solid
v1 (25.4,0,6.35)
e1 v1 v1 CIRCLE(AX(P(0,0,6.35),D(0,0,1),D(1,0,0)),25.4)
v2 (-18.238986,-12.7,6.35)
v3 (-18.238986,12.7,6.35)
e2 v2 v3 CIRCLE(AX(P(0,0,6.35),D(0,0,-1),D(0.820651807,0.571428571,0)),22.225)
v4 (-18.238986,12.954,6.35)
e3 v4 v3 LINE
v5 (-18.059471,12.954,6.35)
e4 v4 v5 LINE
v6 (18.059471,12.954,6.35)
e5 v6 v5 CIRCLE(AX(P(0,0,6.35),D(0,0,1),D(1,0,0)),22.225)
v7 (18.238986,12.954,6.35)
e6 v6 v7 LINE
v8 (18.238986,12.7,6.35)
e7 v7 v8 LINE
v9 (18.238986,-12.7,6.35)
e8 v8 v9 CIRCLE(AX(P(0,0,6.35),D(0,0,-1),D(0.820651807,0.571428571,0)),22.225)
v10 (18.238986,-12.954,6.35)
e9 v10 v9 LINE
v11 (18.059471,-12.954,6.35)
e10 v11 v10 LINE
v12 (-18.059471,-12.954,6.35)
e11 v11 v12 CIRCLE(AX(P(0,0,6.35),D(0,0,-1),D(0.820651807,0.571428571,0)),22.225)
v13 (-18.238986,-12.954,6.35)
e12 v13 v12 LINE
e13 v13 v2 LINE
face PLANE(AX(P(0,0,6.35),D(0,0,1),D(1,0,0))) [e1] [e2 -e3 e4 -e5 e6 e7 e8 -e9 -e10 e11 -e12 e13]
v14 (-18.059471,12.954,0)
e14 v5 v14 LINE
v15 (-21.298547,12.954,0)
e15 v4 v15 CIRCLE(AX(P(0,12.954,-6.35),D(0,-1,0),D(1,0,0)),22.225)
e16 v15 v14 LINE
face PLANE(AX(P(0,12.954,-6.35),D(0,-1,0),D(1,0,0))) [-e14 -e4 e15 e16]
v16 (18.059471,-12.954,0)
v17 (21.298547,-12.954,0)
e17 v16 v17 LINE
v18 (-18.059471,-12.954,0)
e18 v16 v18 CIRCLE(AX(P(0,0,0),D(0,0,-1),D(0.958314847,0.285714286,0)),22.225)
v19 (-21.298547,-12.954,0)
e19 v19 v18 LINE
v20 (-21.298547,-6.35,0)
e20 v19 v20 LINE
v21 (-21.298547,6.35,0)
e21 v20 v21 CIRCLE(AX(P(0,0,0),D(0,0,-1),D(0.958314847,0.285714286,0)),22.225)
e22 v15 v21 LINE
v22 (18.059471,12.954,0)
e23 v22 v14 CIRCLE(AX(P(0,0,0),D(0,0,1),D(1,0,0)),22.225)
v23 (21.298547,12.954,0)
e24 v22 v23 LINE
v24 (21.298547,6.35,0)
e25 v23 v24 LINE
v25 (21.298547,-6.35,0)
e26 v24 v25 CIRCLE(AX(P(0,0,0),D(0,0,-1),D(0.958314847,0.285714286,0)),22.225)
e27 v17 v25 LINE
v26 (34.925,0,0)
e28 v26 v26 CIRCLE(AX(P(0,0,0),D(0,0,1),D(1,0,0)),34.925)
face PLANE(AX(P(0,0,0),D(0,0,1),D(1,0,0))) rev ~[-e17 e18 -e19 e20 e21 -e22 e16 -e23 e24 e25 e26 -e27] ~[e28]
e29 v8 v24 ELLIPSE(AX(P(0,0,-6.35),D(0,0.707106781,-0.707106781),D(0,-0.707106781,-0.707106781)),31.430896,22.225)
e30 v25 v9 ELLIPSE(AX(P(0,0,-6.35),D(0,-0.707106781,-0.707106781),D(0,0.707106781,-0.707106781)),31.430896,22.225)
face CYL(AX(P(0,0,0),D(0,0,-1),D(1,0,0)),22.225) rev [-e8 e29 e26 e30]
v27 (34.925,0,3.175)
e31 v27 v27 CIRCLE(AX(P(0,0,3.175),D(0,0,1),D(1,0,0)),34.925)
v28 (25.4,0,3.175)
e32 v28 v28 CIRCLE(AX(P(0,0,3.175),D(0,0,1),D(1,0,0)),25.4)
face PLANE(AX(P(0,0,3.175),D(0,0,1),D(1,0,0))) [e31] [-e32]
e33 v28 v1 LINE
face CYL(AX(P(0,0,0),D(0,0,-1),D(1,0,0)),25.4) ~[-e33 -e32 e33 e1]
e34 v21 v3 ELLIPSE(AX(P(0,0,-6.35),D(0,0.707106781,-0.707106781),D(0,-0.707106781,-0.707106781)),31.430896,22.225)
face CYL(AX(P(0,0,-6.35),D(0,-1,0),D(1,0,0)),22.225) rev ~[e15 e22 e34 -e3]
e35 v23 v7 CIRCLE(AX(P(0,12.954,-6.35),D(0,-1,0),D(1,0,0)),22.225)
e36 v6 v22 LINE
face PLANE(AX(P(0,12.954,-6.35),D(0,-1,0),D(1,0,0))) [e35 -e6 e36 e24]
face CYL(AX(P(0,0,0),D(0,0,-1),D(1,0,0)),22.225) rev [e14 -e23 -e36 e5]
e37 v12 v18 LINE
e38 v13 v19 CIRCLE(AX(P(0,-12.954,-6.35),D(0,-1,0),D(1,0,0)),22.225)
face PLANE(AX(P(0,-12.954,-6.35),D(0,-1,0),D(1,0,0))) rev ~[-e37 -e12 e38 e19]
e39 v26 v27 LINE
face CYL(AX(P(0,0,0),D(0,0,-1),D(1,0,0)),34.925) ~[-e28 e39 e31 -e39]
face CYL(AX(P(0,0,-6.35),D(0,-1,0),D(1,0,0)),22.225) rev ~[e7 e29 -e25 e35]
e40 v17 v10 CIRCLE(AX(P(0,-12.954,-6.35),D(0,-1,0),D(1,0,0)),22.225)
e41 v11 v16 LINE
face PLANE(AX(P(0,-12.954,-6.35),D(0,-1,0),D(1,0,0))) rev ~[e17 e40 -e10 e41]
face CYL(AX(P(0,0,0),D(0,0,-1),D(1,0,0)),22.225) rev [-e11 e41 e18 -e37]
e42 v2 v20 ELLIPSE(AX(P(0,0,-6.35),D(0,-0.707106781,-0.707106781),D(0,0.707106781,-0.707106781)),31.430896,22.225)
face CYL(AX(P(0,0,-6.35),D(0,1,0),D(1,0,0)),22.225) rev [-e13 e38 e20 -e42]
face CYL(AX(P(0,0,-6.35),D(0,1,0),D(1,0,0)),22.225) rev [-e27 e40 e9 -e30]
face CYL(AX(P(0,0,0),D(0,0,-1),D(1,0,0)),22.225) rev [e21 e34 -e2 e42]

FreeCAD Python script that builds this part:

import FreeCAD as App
import Part
import Sketcher
from FreeCAD import Vector
Q = App.Units.Quantity

doc = App.newDocument("Part")
body = doc.addObject("PartDesign::Body", "Body")

# Sketch on XY plane
sketch1 = body.newObject("Sketcher::SketchObject", "Sketch")
sketch1.AttachmentSupport = (doc.getObject("XY_Plane"), [""])
sketch1.MapMode = "FlatFace"
sketch1.addGeometry(Part.Circle(Vector(0, 0, 0), Vector(0, 0, 1), 35), False)
sketch1.addGeometry(Part.Circle(Vector(0, 0, 0), Vector(0, 0, 1), 25), False)
sketch1.addConstraint(Sketcher.Constraint("Coincident", 0, 3, -1, 1))
sketch1.addConstraint(Sketcher.Constraint("Coincident", 1, 3, -1, 1))
sketch1.addConstraint(Sketcher.Constraint("Diameter", 1, Q("2 in")))
sketch1.addConstraint(Sketcher.Constraint("Diameter", 0, Q("2.75 in")))
pad1 = body.newObject("PartDesign::Pad", "Pad")
pad1.Profile = sketch1
pad1.Length = Q("0.125 in")

# Sketch on XY plane
sketch2 = body.newObject("Sketcher::SketchObject", "Sketch001")
sketch2.AttachmentSupport = (doc.getObject("XY_Plane"), [""])
sketch2.MapMode = "FlatFace"
sketch2.addGeometry(Part.Circle(Vector(0, 0, 0), Vector(0, 0, 1), 25), False)
sketch2.addGeometry(Part.Circle(Vector(0, 0, 0), Vector(0, 0, 1), 22), False)
sketch2.addConstraint(Sketcher.Constraint("Coincident", 0, 3, -1, 1))
sketch2.addConstraint(Sketcher.Constraint("Coincident", 1, 3, -1, 1))
sketch2.addConstraint(Sketcher.Constraint("Diameter", 0, Q("2 in")))
sketch2.addConstraint(Sketcher.Constraint("Diameter", 1, Q("1.75 in")))
pad2 = body.newObject("PartDesign::Pad", "Pad001")
pad2.Profile = sketch2
pad2.Length = Q("0.25 in")

# Sketch on XZ plane
sketch3 = body.newObject("Sketcher::SketchObject", "Sketch002")
sketch3.AttachmentSupport = (doc.getObject("XZ_Plane"), [""])
sketch3.MapMode = "FlatFace"
sketch3.addGeometry(Part.Circle(Vector(0, -6, 0), Vector(0, 0, 1), 22), False)
sketch3.addConstraint(Sketcher.Constraint("PointOnObject", 0, 3, -2))
sketch3.addConstraint(Sketcher.Constraint("Diameter", 0, Q("1.75 in")))
sketch3.addConstraint(Sketcher.Constraint("DistanceY", 0, 3, -1, 1, Q("0.25 in")))
pocket1 = body.newObject("PartDesign::Pocket", "Pocket")
pocket1.Profile = sketch3
pocket1.Type = "TwoLengths"
pocket1.Length = Q("0.51 in")
pocket1.Length2 = Q("0.51 in")

doc.recompute()
